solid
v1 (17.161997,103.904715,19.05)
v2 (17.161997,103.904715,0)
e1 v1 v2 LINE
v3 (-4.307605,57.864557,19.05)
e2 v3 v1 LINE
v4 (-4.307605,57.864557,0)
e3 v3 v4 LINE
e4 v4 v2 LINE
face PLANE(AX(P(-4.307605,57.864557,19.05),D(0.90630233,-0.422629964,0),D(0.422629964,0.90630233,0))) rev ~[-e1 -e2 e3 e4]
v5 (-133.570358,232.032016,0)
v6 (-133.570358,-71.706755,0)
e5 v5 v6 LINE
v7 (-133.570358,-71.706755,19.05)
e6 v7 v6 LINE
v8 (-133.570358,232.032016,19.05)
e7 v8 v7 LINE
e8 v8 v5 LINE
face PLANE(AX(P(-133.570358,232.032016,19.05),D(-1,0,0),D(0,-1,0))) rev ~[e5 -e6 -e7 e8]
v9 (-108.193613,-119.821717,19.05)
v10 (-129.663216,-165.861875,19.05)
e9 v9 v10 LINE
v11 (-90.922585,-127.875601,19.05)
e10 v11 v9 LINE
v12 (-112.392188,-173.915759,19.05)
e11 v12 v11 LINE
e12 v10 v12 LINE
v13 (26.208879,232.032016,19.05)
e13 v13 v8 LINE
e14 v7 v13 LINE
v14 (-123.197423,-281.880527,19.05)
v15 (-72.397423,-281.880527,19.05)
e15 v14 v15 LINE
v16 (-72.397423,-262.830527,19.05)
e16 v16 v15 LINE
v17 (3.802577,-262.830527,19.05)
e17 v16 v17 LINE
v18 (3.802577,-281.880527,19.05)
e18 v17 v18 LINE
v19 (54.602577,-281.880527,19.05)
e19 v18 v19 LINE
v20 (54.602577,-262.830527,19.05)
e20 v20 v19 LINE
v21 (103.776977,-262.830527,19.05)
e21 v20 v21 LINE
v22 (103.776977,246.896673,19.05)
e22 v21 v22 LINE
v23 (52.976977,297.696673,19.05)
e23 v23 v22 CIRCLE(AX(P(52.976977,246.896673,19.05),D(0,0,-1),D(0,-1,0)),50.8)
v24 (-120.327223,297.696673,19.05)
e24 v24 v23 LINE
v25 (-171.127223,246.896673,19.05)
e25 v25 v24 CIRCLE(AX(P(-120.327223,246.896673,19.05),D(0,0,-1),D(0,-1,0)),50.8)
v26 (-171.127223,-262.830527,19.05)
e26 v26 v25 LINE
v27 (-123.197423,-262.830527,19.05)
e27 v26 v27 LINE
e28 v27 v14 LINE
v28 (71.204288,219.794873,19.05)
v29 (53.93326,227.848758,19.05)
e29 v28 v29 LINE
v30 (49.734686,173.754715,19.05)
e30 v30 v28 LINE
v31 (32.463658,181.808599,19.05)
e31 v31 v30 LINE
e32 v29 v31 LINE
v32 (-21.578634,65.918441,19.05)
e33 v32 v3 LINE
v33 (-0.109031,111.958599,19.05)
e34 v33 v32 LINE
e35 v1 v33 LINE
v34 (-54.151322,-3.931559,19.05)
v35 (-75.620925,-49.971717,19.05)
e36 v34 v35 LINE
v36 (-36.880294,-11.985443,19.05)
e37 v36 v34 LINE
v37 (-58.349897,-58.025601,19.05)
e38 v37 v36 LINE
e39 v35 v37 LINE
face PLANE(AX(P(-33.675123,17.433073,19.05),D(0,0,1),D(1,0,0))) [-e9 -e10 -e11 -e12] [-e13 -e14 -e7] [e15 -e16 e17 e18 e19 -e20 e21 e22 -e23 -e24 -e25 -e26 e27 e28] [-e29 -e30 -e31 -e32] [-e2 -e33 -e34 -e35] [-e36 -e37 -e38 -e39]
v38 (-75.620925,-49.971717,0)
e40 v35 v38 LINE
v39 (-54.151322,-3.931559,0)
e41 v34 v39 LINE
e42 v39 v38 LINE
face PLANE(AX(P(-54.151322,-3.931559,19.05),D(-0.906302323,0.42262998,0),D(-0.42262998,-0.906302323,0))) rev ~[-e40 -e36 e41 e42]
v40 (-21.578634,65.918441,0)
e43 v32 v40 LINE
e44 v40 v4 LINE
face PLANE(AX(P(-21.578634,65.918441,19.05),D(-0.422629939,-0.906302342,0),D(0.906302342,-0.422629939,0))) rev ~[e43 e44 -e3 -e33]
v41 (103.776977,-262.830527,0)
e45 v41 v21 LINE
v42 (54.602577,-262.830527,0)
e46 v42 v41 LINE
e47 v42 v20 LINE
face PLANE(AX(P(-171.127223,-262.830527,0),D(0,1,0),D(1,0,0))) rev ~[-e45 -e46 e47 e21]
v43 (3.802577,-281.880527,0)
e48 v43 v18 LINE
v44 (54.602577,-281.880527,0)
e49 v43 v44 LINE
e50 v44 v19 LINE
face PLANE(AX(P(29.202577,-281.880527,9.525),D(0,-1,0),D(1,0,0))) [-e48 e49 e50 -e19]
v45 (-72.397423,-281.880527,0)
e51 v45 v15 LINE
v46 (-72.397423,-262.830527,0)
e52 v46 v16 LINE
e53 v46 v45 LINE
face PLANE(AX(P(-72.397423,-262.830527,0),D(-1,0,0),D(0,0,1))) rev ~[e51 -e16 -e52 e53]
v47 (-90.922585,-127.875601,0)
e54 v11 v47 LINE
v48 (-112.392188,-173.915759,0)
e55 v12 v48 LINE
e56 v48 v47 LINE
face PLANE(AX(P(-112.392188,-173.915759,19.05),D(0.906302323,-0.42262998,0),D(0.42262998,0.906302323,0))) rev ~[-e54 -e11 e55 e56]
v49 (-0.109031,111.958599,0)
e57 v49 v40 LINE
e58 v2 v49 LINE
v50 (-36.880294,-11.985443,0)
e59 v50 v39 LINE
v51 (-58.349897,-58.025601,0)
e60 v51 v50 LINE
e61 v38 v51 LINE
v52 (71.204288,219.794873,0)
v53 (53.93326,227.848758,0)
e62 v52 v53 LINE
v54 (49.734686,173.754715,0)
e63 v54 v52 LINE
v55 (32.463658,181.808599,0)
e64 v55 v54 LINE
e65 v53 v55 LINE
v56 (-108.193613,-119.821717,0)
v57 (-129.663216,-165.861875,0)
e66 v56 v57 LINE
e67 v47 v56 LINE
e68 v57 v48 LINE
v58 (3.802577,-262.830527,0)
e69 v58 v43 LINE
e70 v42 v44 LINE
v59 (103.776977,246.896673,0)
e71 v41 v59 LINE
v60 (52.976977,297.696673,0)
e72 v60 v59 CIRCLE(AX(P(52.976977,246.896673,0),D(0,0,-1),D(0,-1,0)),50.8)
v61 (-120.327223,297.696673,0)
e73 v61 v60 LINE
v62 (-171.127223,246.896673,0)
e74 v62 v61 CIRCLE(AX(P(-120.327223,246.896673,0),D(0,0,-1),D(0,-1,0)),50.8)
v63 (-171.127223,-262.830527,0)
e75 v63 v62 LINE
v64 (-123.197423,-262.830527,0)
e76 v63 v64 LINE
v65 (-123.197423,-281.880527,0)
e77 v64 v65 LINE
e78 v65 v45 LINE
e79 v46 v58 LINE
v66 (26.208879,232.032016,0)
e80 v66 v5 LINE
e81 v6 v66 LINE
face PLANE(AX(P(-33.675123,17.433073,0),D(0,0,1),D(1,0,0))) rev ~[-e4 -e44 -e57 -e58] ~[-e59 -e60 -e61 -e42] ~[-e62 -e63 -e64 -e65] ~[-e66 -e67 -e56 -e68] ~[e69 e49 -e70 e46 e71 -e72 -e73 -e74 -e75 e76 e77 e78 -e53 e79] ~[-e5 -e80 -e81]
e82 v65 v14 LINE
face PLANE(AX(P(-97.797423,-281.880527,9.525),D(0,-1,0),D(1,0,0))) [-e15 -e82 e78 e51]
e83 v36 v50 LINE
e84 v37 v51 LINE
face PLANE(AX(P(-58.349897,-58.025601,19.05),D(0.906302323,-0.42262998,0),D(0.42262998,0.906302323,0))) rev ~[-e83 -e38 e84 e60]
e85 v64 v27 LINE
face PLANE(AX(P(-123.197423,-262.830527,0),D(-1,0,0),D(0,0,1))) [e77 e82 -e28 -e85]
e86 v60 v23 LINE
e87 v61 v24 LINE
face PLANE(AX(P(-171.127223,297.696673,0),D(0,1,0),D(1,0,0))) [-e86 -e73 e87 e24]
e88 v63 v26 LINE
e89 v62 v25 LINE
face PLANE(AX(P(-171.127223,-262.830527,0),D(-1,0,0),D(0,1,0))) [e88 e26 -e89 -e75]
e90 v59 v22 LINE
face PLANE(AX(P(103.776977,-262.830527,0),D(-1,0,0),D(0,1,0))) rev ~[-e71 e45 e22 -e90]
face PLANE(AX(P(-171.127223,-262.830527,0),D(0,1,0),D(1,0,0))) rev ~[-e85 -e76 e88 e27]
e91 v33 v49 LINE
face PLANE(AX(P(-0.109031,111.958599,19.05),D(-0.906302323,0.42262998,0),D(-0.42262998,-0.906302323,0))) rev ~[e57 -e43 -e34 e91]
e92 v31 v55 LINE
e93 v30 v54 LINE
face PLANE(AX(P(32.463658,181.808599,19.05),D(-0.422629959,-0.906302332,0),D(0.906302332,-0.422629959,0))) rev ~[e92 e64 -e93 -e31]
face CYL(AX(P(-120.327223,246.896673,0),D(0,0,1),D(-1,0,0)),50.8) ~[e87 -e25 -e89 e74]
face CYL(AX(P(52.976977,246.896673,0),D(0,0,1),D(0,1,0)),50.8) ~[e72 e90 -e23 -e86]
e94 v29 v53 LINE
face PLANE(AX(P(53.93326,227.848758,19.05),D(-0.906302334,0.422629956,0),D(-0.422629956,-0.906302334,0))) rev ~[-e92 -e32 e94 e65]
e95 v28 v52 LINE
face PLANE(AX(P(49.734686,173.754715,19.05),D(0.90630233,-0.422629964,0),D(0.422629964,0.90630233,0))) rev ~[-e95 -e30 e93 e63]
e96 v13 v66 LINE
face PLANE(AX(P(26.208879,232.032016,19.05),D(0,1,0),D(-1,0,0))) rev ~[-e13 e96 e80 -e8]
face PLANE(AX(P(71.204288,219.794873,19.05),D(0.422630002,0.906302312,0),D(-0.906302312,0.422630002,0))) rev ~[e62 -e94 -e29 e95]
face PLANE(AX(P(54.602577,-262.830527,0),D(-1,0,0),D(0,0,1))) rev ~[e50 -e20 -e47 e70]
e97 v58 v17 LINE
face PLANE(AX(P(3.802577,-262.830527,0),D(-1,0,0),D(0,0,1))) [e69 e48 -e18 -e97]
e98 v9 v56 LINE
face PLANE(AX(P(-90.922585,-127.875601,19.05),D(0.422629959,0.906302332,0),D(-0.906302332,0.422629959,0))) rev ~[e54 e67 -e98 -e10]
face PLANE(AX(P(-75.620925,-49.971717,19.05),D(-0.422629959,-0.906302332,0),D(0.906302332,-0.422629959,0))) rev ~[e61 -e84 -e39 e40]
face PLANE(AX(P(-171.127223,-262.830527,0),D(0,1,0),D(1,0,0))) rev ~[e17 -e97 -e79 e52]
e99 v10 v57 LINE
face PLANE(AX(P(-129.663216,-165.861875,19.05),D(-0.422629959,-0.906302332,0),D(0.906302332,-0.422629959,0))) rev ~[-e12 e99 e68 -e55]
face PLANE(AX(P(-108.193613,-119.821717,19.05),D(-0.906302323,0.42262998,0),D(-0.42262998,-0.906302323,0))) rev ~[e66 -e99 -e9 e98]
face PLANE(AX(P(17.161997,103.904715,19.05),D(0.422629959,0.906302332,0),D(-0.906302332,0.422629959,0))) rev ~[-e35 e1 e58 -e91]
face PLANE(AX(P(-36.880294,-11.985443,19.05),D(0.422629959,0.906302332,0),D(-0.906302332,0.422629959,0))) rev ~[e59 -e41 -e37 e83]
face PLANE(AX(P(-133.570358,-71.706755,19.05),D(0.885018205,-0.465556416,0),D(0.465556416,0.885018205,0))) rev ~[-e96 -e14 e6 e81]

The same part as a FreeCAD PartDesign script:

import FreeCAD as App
import Part
import Sketcher

V = App.Vector
Q = App.Units.Quantity


def edges_at(feature, points):
    """Names of the edges that pass closest to the given points."""
    edges = feature.Shape.Edges
    near = lambda p: min(range(len(edges)), key=lambda i: edges[i].distToShape(Part.Vertex(*p))[0])
    return sorted({f"Edge{near(p) + 1}" for p in points})


def add_polygon(sketch, points):
    """Adds a closed chain of lines whose ends are joined by coincident constraints."""
    first, n = sketch.GeometryCount, len(points)
    for a, b in zip(points, points[1:] + points[:1]):
        sketch.addGeometry(Part.LineSegment(App.Vector(*a, 0), App.Vector(*b, 0)), False)
    for i in range(n):
        sketch.addConstraint(Sketcher.Constraint("Coincident", first + i, 2, first + (i + 1) % n, 1))

doc = App.newDocument("Part")
params = doc.addObject("Spreadsheet::Sheet", "Params")
for row, (alias, value) in enumerate([
    ("sketch1_width", "10.823 in"),
    ("sketch1_height", "22.068 in"),
    ("pad1_length", "0.75 in"),
    ("sketch2_length", "2 in"),
    ("pocket1_length", "1 in"),
    ("sketch3_width", "2 in"),
    ("sketch3_height", "0.75 in"),
    ("pad2_length", "0.75 in"),
    ("pocket2_length", "0.75 in"),
    ("fillet_radius", "2 in"),
], start=1):
    params.set(f"A{row}", alias)
    params.set(f"B{row}", "=" + value)
    params.setAlias(f"B{row}", alias)

body = doc.addObject("PartDesign::Body", "Body")

# Sketch on XY plane
sketch1 = body.newObject("Sketcher::SketchObject", "Sketch")
sketch1.AttachmentSupport = (doc.getObject("XY_Plane"), [""])
sketch1.MapMode = "FlatFace"
add_polygon(sketch1, [(-171, 298), (-171, -263), (104, -263), (104, 298)])  # lines 0-3
sketch1.addConstraint(Sketcher.Constraint("Vertical", 0))
sketch1.addConstraint(Sketcher.Constraint("Horizontal", 1))
sketch1.addConstraint(Sketcher.Constraint("Vertical", 2))
sketch1.addConstraint(Sketcher.Constraint("Horizontal", 3))
sketch1.addConstraint(Sketcher.Constraint("DistanceX", 1, 1, 1, 2, Q("10.823 in")))
sketch1.addConstraint(Sketcher.Constraint("DistanceY", 0, 2, 0, 1, Q("22.068 in")))
sketch1.addConstraint(Sketcher.Constraint("DistanceX", 0, 2, -1, 1, 171.127223))
sketch1.addConstraint(Sketcher.Constraint("DistanceY", 0, 2, -1, 1, 262.830527))
sketch1.setExpression("Constraints[8]", "Params.sketch1_width")
sketch1.setExpression("Constraints[9]", "Params.sketch1_height")
pad1 = body.newObject("PartDesign::Pad", "Pad")
pad1.Profile = sketch1
pad1.setExpression("Length", "Params.pad1_length")

# Sketch on XY plane
sketch2 = body.newObject("Sketcher::SketchObject", "Sketch001")
sketch2.AttachmentSupport = (doc.getObject("XY_Plane"), [""])
sketch2.MapMode = "FlatFace"
sketch2.AttachmentOffset = App.Placement(V(0, 0, 0.75 * 25.4), App.Rotation())
add_polygon(sketch2, [(50, 174), (71, 220), (54, 228), (32, 182)])  # lines 0-3
add_polygon(sketch2, [(-22, 66), (-4, 58), (17, 104), (0, 112)])  # lines 4-7
add_polygon(sketch2, [(-76, -50), (-58, -58), (-37, -12), (-54, -4)])  # lines 8-11
add_polygon(sketch2, [(-130, -166), (-112, -174), (-91, -128), (-108, -120)])  # lines 12-15
sketch2.addConstraint(Sketcher.Constraint("Perpendicular", 0, 1))
sketch2.addConstraint(Sketcher.Constraint("Perpendicular", 1, 2))
sketch2.addConstraint(Sketcher.Constraint("Perpendicular", 2, 3))
sketch2.addConstraint(Sketcher.Constraint("Parallel", 3, 4))
sketch2.addConstraint(Sketcher.Constraint("Perpendicular", 4, 5))
sketch2.addConstraint(Sketcher.Constraint("Perpendicular", 5, 6))
sketch2.addConstraint(Sketcher.Constraint("Perpendicular", 6, 7))
sketch2.addConstraint(Sketcher.Constraint("Perpendicular", 7, 8))
sketch2.addConstraint(Sketcher.Constraint("Perpendicular", 8, 9))
sketch2.addConstraint(Sketcher.Constraint("Perpendicular", 9, 10))
sketch2.addConstraint(Sketcher.Constraint("Perpendicular", 10, 11))
sketch2.addConstraint(Sketcher.Constraint("Perpendicular", 11, 12))
sketch2.addConstraint(Sketcher.Constraint("Perpendicular", 12, 13))
sketch2.addConstraint(Sketcher.Constraint("Perpendicular", 13, 14))
sketch2.addConstraint(Sketcher.Constraint("Perpendicular", 14, 15))
sketch2.addConstraint(Sketcher.Constraint("Equal", 3, 4))
sketch2.addConstraint(Sketcher.Constraint("Equal", 2, 5))
sketch2.addConstraint(Sketcher.Constraint("Equal", 6, 8))
sketch2.addConstraint(Sketcher.Constraint("Equal", 7, 9))
sketch2.addConstraint(Sketcher.Constraint("Equal", 10, 12))
sketch2.addConstraint(Sketcher.Constraint("Equal", 11, 13))
sketch2.addConstraint(Sketcher.Constraint("Distance", 0, Q("2 in")))
sketch2.addConstraint(Sketcher.Constraint("DistanceY", 5, 2, 3, 2, Q("2.75 in")))
sketch2.addConstraint(Sketcher.Constraint("DistanceY", 9, 2, 4, 2, Q("2.75 in")))
sketch2.addConstraint(Sketcher.Constraint("DistanceY", 13, 2, 8, 2, Q("2.75 in")))
sketch2.addConstraint(Sketcher.Constraint("DistanceY", -1, 1, 2, 2, 181.808599))
sketch2.addConstraint(Sketcher.Constraint("DistanceY", 8, 2, -1, 1, 58.025601))
sketch2.addConstraint(Sketcher.Constraint("DistanceX", 2, 2, 1, 2, 21.469602))
sketch2.addConstraint(Sketcher.Constraint("DistanceX", -1, 1, 0, 2, 71.204288))
sketch2.addConstraint(Sketcher.Constraint("DistanceX", 6, 2, -1, 1, 0.109031))
sketch2.addConstraint(Sketcher.Constraint("DistanceX", 12, 2, -1, 1, 112.392188))
sketch2.addConstraint(Sketcher.Constraint("DistanceX", 8, 2, 4, 2, 54.042292))
sketch2.setExpression("Constraints[37]", "Params.sketch2_length")
pocket1 = body.newObject("PartDesign::Pocket", "Pocket")
pocket1.Profile = sketch2
pocket1.setExpression("Length", "Params.pocket1_length")

# Sketch on XZ plane
sketch3 = body.newObject("Sketcher::SketchObject", "Sketch002")
sketch3.AttachmentSupport = (doc.getObject("XZ_Plane"), [""])
sketch3.MapMode = "FlatFace"
sketch3.AttachmentOffset = App.Placement(V(0, 0, 262.830527), App.Rotation())
add_polygon(sketch3, [(-123, 19), (-123, 0), (-72, 0), (-72, 19)])  # lines 0-3
add_polygon(sketch3, [(4, 19), (4, 0), (55, 0), (55, 19)])  # lines 4-7
sketch3.addConstraint(Sketcher.Constraint("Vertical", 0))
sketch3.addConstraint(Sketcher.Constraint("Horizontal", 1))
sketch3.addConstraint(Sketcher.Constraint("Vertical", 2))
sketch3.addConstraint(Sketcher.Constraint("Horizontal", 3))
sketch3.addConstraint(Sketcher.Constraint("Vertical", 4))
sketch3.addConstraint(Sketcher.Constraint("Horizontal", 5))
sketch3.addConstraint(Sketcher.Constraint("Vertical", 6))
sketch3.addConstraint(Sketcher.Constraint("Horizontal", 7))
sketch3.addConstraint(Sketcher.Constraint("PointOnObject", 0, 2, -1))
sketch3.addConstraint(Sketcher.Constraint("PointOnObject", 4, 2, -1))
sketch3.addConstraint(Sketcher.Constraint("Horizontal", 3, 2, 6, 2))
sketch3.addConstraint(Sketcher.Constraint("Equal", 3, 5))
sketch3.addConstraint(Sketcher.Constraint("DistanceX", 1, 1, 1, 2, Q("2 in")))
sketch3.addConstraint(Sketcher.Constraint("DistanceX", 1, 2, 4, 2, Q("3 in")))
sketch3.addConstraint(Sketcher.Constraint("DistanceY", 0, 2, 0, 1, Q("0.75 in")))
sketch3.addConstraint(Sketcher.Constraint("DistanceX", 0, 2, -1, 1, 123.197423))
sketch3.setExpression("Constraints[20]", "Params.sketch3_width")
sketch3.setExpression("Constraints[22]", "Params.sketch3_height")
pad2 = body.newObject("PartDesign::Pad", "Pad001")
pad2.Profile = sketch3
pad2.setExpression("Length", "Params.pad2_length")

# Sketch on XY plane
sketch4 = body.newObject("Sketcher::SketchObject", "Sketch003")
sketch4.AttachmentSupport = (doc.getObject("XY_Plane"), [""])
sketch4.MapMode = "FlatFace"
sketch4.AttachmentOffset = App.Placement(V(0, 0, 0.75 * 25.4), App.Rotation())
add_polygon(sketch4, [(-134, -72), (26, 232), (-134, 232)])  # lines 0-2
sketch4.addConstraint(Sketcher.Constraint("Horizontal", 1))
sketch4.addConstraint(Sketcher.Constraint("Vertical", 2))
sketch4.addConstraint(Sketcher.Constraint("DistanceY", 2, 2, 2, 1, 303.738771))
sketch4.addConstraint(Sketcher.Constraint("Distance", 0, 343.200591))
sketch4.addConstraint(Sketcher.Constraint("DistanceX", -1, 1, 0, 2, 26.208879))
sketch4.addConstraint(Sketcher.Constraint("DistanceY", -1, 1, 0, 2, 232.032016))
pocket2 = body.newObject("PartDesign::Pocket", "Pocket001")
pocket2.Profile = sketch4
pocket2.setExpression("Length", "Params.pocket2_length")
doc.recompute()

fillet = body.newObject("PartDesign::Fillet", "Fillet")
fillet.Base = (pocket2, edges_at(pocket2, [(-171.127, 297.697, 9.525), (103.777, 297.697, 9.525)]))
fillet.setExpression("Radius", "Params.fillet_radius")

doc.recompute()
